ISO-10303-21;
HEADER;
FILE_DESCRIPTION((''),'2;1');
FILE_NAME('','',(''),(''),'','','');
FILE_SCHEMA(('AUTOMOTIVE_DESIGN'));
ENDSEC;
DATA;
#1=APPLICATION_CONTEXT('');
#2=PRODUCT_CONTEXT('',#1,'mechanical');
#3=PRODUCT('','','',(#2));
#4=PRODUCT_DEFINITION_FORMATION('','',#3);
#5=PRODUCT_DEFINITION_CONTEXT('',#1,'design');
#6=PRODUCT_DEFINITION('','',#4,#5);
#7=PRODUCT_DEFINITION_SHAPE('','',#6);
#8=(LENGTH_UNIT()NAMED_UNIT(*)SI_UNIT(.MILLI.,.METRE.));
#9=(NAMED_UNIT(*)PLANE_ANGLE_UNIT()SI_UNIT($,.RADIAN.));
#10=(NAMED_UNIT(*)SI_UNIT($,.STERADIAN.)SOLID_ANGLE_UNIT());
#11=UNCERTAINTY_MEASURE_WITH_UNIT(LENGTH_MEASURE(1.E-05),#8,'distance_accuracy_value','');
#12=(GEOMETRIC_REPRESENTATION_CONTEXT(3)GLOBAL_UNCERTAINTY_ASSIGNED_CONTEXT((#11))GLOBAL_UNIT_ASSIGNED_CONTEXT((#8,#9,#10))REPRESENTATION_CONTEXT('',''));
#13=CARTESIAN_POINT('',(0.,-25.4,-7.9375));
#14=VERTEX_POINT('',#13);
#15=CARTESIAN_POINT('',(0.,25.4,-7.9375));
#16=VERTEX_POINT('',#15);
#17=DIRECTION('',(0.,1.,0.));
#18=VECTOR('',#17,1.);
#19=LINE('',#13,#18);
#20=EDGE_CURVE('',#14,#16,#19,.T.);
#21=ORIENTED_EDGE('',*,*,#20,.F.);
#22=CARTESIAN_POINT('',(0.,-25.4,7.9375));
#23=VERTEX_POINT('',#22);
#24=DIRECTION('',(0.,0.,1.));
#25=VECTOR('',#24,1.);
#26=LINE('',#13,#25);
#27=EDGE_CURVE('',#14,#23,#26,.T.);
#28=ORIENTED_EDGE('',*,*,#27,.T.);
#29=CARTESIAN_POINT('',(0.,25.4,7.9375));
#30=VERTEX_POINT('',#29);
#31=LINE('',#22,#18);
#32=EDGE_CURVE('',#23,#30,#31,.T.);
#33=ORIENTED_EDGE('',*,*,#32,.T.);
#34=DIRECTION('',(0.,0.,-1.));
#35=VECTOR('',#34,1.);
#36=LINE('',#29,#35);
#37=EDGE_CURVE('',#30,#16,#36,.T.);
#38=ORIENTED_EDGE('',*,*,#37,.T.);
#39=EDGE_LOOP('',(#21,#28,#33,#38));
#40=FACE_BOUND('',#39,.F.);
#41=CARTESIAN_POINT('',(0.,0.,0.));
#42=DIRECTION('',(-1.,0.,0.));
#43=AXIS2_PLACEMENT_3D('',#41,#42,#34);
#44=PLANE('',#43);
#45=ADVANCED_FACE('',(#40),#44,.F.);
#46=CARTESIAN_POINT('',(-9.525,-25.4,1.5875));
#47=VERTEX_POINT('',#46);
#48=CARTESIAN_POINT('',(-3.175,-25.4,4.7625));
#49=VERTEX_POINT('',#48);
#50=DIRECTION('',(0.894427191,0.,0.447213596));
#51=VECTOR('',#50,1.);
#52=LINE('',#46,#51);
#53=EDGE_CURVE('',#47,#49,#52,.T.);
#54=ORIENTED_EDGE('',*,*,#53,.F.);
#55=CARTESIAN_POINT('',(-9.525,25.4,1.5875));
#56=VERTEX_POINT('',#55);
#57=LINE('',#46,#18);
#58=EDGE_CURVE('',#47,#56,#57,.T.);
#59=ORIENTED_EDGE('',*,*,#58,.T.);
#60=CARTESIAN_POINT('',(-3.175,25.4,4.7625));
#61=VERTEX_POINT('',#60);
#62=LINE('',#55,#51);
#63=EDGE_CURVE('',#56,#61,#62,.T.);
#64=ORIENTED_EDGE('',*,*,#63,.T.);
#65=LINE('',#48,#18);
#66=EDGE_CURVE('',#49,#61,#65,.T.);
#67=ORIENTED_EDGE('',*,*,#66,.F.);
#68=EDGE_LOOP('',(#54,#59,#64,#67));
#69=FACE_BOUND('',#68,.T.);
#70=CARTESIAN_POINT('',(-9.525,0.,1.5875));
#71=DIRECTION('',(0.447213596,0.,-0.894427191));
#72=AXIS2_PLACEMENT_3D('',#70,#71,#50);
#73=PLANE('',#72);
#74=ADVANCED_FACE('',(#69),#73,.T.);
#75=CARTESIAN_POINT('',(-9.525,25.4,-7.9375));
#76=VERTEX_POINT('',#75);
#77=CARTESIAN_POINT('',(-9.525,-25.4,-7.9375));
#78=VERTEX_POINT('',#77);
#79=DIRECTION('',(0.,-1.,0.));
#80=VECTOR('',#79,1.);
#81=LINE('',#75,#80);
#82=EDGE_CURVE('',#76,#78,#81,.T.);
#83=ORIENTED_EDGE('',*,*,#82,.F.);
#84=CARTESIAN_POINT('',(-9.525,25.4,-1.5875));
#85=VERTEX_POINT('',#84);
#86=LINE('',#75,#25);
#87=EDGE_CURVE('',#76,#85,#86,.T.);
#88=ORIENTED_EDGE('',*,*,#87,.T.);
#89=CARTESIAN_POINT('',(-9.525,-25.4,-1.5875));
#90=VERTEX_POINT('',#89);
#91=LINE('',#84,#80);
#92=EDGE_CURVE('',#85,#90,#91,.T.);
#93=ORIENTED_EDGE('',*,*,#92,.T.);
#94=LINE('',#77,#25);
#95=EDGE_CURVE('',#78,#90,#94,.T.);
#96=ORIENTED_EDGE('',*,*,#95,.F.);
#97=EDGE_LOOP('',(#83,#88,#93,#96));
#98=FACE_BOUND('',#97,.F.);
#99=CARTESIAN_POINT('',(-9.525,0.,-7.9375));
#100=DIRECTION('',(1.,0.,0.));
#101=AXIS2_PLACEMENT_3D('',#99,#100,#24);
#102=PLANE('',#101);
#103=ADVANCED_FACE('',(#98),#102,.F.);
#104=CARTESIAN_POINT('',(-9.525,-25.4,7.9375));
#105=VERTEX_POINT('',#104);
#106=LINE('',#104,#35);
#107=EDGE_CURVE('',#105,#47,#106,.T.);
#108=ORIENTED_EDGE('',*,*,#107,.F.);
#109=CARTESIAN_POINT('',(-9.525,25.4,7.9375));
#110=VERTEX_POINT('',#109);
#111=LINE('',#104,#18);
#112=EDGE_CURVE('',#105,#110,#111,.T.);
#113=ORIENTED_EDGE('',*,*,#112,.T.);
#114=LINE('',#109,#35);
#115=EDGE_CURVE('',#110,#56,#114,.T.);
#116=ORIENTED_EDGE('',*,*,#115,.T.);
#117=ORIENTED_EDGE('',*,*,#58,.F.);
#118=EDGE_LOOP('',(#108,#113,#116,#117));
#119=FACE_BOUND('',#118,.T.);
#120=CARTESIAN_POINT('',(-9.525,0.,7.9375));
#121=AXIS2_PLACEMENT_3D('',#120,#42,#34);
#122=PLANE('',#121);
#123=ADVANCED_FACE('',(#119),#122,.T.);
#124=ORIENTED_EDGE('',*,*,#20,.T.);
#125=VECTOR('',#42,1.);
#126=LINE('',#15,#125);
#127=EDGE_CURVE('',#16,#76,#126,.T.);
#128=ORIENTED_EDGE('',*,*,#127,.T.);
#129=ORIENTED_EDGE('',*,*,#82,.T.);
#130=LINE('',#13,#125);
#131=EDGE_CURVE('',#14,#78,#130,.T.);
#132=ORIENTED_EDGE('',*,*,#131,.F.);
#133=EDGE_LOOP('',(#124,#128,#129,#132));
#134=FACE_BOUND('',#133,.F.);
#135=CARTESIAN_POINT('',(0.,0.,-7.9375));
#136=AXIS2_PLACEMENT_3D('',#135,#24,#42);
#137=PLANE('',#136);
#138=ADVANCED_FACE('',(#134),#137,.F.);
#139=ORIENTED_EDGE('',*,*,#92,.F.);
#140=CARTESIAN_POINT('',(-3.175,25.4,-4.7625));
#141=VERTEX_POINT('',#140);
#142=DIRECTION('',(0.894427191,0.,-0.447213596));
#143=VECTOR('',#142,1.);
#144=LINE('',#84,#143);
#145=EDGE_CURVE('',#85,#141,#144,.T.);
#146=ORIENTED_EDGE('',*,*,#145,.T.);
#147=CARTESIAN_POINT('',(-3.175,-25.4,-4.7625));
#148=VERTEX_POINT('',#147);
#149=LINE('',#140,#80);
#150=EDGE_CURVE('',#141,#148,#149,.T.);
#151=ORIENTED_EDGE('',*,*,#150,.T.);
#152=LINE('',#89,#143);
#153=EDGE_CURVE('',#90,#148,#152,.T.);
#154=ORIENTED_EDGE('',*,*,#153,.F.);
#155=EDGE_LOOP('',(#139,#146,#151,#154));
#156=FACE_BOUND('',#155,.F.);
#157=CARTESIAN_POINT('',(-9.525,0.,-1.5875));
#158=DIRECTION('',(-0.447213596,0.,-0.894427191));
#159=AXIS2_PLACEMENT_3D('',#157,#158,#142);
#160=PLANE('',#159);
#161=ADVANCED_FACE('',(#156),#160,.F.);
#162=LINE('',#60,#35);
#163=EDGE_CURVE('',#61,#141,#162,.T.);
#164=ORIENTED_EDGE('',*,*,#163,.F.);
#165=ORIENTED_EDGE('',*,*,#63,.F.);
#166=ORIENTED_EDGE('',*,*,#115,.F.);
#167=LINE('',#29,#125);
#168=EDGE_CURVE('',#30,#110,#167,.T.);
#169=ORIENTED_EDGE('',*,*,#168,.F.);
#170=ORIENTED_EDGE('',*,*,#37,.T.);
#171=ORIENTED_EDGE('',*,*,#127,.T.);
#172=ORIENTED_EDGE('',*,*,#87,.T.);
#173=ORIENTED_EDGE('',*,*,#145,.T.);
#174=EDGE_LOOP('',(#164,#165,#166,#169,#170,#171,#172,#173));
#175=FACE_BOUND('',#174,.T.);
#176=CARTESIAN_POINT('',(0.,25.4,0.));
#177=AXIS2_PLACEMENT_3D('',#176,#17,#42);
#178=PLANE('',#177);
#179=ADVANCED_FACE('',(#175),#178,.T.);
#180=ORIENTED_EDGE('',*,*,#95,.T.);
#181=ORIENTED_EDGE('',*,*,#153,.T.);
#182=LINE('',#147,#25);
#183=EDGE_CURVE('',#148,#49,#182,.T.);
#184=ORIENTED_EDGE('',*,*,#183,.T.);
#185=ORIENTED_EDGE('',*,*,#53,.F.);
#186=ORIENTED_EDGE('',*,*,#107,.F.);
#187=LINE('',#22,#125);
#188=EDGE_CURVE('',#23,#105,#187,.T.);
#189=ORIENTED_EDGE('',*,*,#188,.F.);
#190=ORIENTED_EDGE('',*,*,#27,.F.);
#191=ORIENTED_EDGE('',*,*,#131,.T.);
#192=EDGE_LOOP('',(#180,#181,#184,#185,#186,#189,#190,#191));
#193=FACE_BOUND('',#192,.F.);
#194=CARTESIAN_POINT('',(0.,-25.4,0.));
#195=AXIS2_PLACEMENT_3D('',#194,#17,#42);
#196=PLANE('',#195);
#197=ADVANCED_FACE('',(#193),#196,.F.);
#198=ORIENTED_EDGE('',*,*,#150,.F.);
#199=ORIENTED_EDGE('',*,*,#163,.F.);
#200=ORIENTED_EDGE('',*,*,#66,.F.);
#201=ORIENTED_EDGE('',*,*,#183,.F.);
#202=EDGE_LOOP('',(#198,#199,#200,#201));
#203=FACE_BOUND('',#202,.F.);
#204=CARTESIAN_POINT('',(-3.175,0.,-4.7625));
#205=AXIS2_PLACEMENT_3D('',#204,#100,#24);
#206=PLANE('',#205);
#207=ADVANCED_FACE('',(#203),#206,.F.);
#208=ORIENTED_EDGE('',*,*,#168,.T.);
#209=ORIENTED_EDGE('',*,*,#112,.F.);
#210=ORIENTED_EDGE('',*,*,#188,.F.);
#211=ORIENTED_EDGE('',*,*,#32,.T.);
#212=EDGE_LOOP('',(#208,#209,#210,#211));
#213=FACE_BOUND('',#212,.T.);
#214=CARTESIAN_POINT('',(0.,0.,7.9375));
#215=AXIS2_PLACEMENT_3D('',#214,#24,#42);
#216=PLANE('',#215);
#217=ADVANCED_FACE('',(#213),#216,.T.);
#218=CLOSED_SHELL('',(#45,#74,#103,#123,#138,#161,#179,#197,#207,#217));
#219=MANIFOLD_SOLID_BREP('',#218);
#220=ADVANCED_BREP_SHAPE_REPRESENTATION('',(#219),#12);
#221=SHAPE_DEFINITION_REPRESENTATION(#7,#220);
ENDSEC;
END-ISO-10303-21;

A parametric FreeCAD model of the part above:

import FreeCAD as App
import Part
import Sketcher
from FreeCAD import Vector
Q = App.Units.Quantity

doc = App.newDocument("Part")
params = doc.addObject("Spreadsheet::Sheet", "Params")
for row, (alias, value) in enumerate([
    ("sketch1_height", "0.25 in"),
    ("sketch1_width", "0.375 in"),
    ("pad1_length", "2 in"),
], start=1):
    params.set(f"A{row}", alias)
    params.set(f"B{row}", "=" + value)
    params.setAlias(f"B{row}", alias)

body = doc.addObject("PartDesign::Body", "Body")

# Sketch on XZ plane
sketch1 = body.newObject("Sketcher::SketchObject", "Sketch")
sketch1.AttachmentSupport = (doc.getObject("XZ_Plane"), [""])
sketch1.MapMode = "FlatFace"
sketch1.addGeometry(Part.LineSegment(Vector(-3.175, -4.7625, 0), Vector(-3.175, 4.7625, 0)), False)
sketch1.addGeometry(Part.LineSegment(Vector(-3.175, 4.7625, 0), Vector(-9.525, 1.5875, 0)), False)
sketch1.addGeometry(Part.LineSegment(Vector(-9.525, 1.5875, 0), Vector(-9.525, 7.9375, 0)), False)
sketch1.addGeometry(Part.LineSegment(Vector(-9.525, 7.9375, 0), Vector(0, 7.9375, 0)), False)
sketch1.addGeometry(Part.LineSegment(Vector(0, 7.9375, 0), Vector(0, -7.9375, 0)), False)
sketch1.addGeometry(Part.LineSegment(Vector(0, -7.9375, 0), Vector(-9.525, -7.9375, 0)), False)
sketch1.addGeometry(Part.LineSegment(Vector(-9.525, -7.9375, 0), Vector(-9.525, -1.5875, 0)), False)
sketch1.addGeometry(Part.LineSegment(Vector(-9.525, -1.5875, 0), Vector(-3.175, -4.7625, 0)), False)
sketch1.addConstraint(Sketcher.Constraint("Coincident", 0, 2, 1, 1))
sketch1.addConstraint(Sketcher.Constraint("Coincident", 1, 2, 2, 1))
sketch1.addConstraint(Sketcher.Constraint("Coincident", 2, 2, 3, 1))
sketch1.addConstraint(Sketcher.Constraint("Coincident", 3, 2, 4, 1))
sketch1.addConstraint(Sketcher.Constraint("Coincident", 4, 2, 5, 1))
sketch1.addConstraint(Sketcher.Constraint("Coincident", 5, 2, 6, 1))
sketch1.addConstraint(Sketcher.Constraint("Coincident", 6, 2, 7, 1))
sketch1.addConstraint(Sketcher.Constraint("Coincident", 7, 2, 0, 1))
sketch1.addConstraint(Sketcher.Constraint("Vertical", 0))
sketch1.addConstraint(Sketcher.Constraint("Vertical", 2))
sketch1.addConstraint(Sketcher.Constraint("Horizontal", 3))
sketch1.addConstraint(Sketcher.Constraint("Vertical", 4))
sketch1.addConstraint(Sketcher.Constraint("Horizontal", 5))
sketch1.addConstraint(Sketcher.Constraint("Vertical", 6))
sketch1.addConstraint(Sketcher.Constraint("Symmetric", 3, 2, 4, 2, -1, 1))
sketch1.addConstraint(Sketcher.Constraint("Symmetric", 1, 2, 6, 2, -1))
sketch1.addConstraint(Sketcher.Constraint("Equal", 5, 0))
sketch1.addConstraint(Sketcher.Constraint("Equal", 1, 7))
sketch1.addConstraint(Sketcher.Constraint("DistanceY", 2, 1, 2, 2, Q("0.25 in")))
sketch1.addConstraint(Sketcher.Constraint("DistanceX", 3, 1, 3, 2, Q("0.375 in")))
sketch1.addConstraint(Sketcher.Constraint("DistanceX", 1, 2, 0, 2, Q("0.25 in")))
sketch1.addConstraint(Sketcher.Constraint("DistanceY", 6, 2, 0, 2, Q("0.25 in")))
sketch1.setExpression("Constraints[18]", "Params.sketch1_height")
sketch1.setExpression("Constraints[19]", "Params.sketch1_width")
pad1 = body.newObject("PartDesign::Pad", "Pad")
pad1.Profile = sketch1
pad1.setExpression("Length", "Params.pad1_length")
pad1.Midplane = True

doc.recompute()
